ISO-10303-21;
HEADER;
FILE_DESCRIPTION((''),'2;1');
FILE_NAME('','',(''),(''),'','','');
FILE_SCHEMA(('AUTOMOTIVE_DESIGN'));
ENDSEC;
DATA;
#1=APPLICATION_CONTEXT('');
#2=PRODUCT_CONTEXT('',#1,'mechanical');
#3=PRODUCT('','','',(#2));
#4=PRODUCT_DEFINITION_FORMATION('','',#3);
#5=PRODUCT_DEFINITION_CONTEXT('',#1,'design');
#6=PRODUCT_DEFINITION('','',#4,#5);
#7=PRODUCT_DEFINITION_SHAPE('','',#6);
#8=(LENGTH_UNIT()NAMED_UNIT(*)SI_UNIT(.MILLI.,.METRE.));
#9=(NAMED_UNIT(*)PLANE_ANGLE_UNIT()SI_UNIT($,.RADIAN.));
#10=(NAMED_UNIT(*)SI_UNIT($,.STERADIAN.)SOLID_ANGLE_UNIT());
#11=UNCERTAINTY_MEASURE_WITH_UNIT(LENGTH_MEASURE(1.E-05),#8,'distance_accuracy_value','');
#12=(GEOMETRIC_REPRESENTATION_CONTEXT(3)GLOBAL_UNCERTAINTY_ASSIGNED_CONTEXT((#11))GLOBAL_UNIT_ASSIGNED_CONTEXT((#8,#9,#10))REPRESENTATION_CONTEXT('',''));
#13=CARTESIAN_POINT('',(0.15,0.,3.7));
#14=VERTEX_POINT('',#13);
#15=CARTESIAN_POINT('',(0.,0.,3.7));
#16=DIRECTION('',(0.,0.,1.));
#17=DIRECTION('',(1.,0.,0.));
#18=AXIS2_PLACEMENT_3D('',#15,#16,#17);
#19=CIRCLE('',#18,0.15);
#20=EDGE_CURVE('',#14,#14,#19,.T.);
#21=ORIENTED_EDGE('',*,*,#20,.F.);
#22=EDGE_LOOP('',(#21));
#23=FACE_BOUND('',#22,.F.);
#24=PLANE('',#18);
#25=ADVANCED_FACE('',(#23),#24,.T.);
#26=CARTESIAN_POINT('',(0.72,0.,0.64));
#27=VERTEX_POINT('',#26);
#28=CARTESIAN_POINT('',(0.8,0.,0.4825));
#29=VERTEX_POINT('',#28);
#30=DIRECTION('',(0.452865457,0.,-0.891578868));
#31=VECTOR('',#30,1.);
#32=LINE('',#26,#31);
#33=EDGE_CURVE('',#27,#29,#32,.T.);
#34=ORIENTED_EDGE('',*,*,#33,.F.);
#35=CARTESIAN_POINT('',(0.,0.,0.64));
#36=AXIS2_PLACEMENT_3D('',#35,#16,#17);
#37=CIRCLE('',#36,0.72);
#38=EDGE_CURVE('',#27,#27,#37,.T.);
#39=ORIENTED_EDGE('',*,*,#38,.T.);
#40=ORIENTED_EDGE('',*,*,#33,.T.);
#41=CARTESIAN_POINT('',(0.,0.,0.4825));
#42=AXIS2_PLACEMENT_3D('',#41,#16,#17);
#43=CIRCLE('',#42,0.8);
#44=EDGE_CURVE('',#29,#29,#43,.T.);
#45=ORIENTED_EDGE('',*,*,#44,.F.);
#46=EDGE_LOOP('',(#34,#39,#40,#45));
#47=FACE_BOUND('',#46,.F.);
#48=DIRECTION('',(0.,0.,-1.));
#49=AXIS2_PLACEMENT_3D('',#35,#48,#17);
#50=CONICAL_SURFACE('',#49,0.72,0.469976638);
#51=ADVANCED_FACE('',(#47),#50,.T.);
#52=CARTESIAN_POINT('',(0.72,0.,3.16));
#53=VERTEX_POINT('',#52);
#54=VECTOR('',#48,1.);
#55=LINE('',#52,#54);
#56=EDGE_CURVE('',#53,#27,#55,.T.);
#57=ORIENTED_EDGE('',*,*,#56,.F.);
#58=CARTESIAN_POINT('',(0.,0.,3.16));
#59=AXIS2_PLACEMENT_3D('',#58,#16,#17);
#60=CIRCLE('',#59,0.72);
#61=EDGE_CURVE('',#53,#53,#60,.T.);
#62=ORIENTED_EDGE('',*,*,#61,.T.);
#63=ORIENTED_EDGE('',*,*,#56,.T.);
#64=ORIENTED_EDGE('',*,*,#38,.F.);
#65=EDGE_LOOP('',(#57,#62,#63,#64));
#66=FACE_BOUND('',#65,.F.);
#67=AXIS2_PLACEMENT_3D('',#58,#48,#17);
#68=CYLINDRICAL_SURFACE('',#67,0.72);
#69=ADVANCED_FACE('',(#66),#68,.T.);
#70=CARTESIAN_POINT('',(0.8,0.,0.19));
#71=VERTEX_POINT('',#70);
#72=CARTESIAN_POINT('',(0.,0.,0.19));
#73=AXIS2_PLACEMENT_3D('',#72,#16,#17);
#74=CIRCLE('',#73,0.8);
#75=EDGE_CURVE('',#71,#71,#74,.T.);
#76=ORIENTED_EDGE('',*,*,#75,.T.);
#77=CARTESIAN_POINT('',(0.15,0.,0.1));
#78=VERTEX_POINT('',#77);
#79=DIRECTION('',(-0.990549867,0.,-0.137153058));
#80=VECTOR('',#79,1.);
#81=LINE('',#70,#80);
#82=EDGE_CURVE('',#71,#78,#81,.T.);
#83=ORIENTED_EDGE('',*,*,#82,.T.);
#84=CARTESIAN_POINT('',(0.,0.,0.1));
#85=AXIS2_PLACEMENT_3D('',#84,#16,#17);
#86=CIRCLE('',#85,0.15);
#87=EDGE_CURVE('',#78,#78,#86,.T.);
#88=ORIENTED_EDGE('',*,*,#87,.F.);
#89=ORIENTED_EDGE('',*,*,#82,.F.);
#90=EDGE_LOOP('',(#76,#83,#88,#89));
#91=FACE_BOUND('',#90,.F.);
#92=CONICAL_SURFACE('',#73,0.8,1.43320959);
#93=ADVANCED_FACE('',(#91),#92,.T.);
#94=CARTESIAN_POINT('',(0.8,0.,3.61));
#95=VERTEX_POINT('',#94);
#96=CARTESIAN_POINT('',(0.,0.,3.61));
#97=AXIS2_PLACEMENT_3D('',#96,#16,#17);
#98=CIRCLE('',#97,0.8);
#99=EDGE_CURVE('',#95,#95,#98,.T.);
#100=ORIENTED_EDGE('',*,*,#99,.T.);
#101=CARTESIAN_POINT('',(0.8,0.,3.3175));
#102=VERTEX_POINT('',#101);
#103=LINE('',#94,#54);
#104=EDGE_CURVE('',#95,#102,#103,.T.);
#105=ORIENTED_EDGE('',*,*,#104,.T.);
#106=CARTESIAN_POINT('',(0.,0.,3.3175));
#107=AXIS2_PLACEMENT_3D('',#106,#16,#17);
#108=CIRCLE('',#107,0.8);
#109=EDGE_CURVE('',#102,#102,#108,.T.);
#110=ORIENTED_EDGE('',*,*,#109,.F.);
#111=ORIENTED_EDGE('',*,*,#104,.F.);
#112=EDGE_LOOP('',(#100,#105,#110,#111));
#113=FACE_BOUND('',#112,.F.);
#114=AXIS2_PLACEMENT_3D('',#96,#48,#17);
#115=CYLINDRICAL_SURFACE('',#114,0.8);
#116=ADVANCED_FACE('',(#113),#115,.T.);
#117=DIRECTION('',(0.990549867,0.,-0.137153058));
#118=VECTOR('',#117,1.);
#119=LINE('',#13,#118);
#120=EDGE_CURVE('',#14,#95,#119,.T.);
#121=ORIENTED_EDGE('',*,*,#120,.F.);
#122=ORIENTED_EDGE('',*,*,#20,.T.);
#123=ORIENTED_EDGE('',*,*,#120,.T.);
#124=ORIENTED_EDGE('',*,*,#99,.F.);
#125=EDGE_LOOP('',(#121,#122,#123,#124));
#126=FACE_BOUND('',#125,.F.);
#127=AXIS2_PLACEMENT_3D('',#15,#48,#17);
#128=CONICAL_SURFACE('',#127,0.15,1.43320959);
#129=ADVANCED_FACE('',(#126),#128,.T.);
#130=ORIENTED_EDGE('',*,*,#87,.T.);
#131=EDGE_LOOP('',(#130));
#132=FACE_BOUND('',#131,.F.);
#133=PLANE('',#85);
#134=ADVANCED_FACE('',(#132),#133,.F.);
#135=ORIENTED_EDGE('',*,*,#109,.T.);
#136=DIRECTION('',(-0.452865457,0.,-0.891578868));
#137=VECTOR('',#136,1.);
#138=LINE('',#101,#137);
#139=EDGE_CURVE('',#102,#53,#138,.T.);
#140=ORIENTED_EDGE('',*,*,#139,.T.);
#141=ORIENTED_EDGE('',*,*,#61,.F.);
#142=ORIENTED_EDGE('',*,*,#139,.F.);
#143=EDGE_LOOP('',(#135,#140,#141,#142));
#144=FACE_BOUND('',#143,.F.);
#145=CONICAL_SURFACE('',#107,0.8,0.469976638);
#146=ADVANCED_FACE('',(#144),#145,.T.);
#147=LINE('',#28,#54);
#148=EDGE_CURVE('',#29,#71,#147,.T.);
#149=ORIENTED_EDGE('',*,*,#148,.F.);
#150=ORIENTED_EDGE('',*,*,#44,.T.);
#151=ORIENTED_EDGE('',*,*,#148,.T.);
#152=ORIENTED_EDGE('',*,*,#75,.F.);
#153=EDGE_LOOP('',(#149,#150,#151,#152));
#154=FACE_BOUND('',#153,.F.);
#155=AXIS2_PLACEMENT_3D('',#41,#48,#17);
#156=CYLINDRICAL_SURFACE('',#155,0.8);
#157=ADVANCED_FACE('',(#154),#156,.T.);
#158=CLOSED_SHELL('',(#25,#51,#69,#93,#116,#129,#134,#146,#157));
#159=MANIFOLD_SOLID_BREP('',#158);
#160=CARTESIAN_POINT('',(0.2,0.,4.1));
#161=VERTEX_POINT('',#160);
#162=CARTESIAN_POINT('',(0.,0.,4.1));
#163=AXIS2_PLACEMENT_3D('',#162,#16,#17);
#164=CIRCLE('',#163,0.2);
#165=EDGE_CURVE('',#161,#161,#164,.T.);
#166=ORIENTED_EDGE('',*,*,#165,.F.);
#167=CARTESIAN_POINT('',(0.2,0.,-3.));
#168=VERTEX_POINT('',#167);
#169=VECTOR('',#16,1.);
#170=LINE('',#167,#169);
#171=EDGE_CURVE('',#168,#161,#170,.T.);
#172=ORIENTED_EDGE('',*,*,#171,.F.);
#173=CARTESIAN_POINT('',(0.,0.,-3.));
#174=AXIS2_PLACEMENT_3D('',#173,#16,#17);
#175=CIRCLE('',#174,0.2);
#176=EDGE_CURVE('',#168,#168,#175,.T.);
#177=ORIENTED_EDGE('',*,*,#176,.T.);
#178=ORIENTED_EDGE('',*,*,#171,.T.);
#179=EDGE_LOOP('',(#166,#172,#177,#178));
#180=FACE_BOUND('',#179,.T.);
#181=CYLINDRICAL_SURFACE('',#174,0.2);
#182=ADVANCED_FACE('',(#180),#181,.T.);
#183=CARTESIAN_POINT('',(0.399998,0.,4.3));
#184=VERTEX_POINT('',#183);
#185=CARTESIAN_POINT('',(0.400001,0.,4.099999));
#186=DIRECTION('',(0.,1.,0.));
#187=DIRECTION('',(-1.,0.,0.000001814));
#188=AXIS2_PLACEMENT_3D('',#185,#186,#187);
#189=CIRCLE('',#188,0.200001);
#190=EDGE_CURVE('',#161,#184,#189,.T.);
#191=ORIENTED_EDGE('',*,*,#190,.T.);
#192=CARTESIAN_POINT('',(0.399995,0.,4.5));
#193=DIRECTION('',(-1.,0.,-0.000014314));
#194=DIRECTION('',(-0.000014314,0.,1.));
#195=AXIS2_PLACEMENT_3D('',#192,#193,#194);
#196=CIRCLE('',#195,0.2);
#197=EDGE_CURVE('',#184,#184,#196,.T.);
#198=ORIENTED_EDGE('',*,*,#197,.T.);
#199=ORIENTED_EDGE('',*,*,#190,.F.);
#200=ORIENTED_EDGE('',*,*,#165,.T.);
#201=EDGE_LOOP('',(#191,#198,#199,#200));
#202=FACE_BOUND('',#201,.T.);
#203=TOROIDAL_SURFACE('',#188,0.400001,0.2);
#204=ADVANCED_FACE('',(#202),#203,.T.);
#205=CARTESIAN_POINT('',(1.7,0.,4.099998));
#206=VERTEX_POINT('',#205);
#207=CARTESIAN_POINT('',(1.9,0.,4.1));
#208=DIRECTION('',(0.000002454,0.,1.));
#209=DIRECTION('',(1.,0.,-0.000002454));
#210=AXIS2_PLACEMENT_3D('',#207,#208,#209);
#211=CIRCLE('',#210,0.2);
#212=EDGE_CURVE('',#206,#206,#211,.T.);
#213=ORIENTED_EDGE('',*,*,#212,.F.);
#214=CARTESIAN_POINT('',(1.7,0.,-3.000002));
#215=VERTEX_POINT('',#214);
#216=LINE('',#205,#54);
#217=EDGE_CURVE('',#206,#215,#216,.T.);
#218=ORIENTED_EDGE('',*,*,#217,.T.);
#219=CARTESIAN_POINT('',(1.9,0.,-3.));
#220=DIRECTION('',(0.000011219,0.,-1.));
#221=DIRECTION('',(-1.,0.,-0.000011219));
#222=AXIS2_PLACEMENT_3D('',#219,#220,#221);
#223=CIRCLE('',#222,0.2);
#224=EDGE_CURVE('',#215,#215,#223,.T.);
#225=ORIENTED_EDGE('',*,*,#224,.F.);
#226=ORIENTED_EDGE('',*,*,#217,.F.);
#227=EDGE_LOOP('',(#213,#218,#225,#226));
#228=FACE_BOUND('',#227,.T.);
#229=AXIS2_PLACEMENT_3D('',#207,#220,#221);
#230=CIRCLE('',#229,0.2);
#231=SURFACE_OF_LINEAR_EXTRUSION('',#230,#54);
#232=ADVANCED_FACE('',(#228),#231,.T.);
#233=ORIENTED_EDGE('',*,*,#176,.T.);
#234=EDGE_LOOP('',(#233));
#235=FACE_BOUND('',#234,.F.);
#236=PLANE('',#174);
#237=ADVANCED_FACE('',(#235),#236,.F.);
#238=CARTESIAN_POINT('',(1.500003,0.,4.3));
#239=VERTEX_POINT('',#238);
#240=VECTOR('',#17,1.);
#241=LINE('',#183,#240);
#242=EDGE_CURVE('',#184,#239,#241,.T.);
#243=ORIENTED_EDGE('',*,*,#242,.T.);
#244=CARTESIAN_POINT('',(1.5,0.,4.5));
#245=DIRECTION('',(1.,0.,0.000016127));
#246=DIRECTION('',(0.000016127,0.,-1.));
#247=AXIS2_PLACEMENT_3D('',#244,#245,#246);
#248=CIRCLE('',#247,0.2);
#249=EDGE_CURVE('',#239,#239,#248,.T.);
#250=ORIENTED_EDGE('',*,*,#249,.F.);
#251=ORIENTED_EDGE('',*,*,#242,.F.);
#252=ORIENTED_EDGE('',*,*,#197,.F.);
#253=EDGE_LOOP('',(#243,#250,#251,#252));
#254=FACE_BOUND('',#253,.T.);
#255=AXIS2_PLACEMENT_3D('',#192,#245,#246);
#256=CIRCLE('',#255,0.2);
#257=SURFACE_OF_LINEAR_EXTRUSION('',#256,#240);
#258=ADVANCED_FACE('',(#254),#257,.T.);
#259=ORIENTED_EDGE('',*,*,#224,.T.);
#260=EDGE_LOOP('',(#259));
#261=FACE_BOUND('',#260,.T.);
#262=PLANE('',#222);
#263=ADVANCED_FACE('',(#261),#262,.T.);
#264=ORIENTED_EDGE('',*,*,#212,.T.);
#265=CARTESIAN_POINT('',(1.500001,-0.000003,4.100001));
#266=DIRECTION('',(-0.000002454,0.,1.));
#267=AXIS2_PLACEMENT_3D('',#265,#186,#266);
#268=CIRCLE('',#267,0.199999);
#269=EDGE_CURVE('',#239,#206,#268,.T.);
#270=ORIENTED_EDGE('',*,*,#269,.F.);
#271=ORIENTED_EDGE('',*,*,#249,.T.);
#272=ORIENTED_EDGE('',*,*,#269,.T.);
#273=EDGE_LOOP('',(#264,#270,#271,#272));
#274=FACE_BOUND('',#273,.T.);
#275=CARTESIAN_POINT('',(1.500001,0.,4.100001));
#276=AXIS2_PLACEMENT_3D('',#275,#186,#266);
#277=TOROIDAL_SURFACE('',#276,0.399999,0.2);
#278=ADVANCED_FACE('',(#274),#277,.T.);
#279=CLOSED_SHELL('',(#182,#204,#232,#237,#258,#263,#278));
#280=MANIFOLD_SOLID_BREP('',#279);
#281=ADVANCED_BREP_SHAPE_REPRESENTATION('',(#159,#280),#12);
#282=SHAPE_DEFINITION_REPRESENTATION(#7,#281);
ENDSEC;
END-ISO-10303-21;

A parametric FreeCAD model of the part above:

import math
import FreeCAD as App
import Part
import Sketcher


def add_polygon(sketch, points):
    """Adds a closed chain of lines whose ends are joined by coincident constraints."""
    first, n = sketch.GeometryCount, len(points)
    for a, b in zip(points, points[1:] + points[:1]):
        sketch.addGeometry(Part.LineSegment(App.Vector(*a, 0), App.Vector(*b, 0)), False)
    for i in range(n):
        sketch.addConstraint(Sketcher.Constraint("Coincident", first + i, 2, first + (i + 1) % n, 1))

doc = App.newDocument("Part")
body = doc.addObject("PartDesign::Body", "Body")

sketch1 = body.newObject("Sketcher::SketchObject", "Sketch")
sketch1.AttachmentSupport = (doc.getObject("XY_Plane"), [""])
sketch1.MapMode = "FlatFace"
sketch1.AttachmentOffset = App.Placement(App.Vector(0, 0, -2), App.Rotation())
sketch1.addGeometry(Part.Circle(App.Vector(0, 0, 0), App.Vector(0, 0, 1), 0.2), False)
sketch1.addConstraint(Sketcher.Constraint("Coincident", 0, 3, -1, 1))
sketch1.addConstraint(Sketcher.Constraint("Diameter", 0, 0.4))

sketch2 = body.newObject("Sketcher::SketchObject", "Sketch001")
sketch2.AttachmentSupport = (doc.getObject("XZ_Plane"), [""])
sketch2.MapMode = "FlatFace"
sketch2.addGeometry(Part.LineSegment(App.Vector(0, -3, 0), App.Vector(0, 4.1, 0)), False)
sketch2.addGeometry(Part.ArcOfCircle(Part.Circle(App.Vector(0.4, 4.1, 0), App.Vector(0, 0, 1), 0.4), math.radians(90), math.radians(180)), False)
sketch2.addGeometry(Part.LineSegment(App.Vector(0.4, 4.5, 0), App.Vector(1.5, 4.5, 0)), False)
sketch2.addGeometry(Part.ArcOfCircle(Part.Circle(App.Vector(1.5, 4.1, 0), App.Vector(0, 0, 1), 0.4), math.radians(0), math.radians(90)), False)
sketch2.addGeometry(Part.LineSegment(App.Vector(1.9, 4.1, 0), App.Vector(1.9, -3, 0)), False)
sketch2.addConstraint(Sketcher.Constraint("Tangent", 0, 2, 1, 2))
sketch2.addConstraint(Sketcher.Constraint("Coincident", 1, 1, 2, 1))
sketch2.addConstraint(Sketcher.Constraint("Coincident", 2, 2, 3, 2))
sketch2.addConstraint(Sketcher.Constraint("Coincident", 3, 1, 4, 1))
sketch2.addConstraint(Sketcher.Constraint("Vertical", 0))
sketch2.addConstraint(Sketcher.Constraint("Horizontal", 2))
sketch2.addConstraint(Sketcher.Constraint("Vertical", 4))
sketch2.addConstraint(Sketcher.Constraint("Equal", 1, 3))
sketch2.addConstraint(Sketcher.Constraint("PointOnObject", 0, 1, -2))
sketch2.addConstraint(Sketcher.Constraint("Horizontal", 0, 2, 3, 1))
sketch2.addConstraint(Sketcher.Constraint("Horizontal", 0, 1, 4, 2))
sketch2.addConstraint(Sketcher.Constraint("Vertical", 3, 3, 2, 2))
sketch2.addConstraint(Sketcher.Constraint("Radius", 1, 0.400001))
sketch2.addConstraint(Sketcher.Constraint("DistanceY", 0, 1, 0, 2, 7.1))
sketch2.addConstraint(Sketcher.Constraint("DistanceY", 0, 1, -1, 1, 3.0))
sketch2.addConstraint(Sketcher.Constraint("DistanceX", -1, 1, 3, 3, 1.500001))
sketch2.addConstraint(Sketcher.Constraint("DistanceX", 2, 1, 2, 2, 1.100005))
doc.recompute()

additivepipe = body.newObject("PartDesign::AdditivePipe", "AdditivePipe")
additivepipe.Profile = sketch1
additivepipe.Spine = (sketch2, ["Edge1", "Edge2", "Edge3", "Edge4", "Edge5"])
body2 = doc.addObject("PartDesign::Body", "Body001")

sketch3 = body2.newObject("Sketcher::SketchObject", "Sketch002")
sketch3.AttachmentSupport = (doc.getObject("XZ_Plane001"), [""])
sketch3.MapMode = "FlatFace"
add_polygon(sketch3, [(0, 3.7), (0, 0.1), (0.15, 0.1), (0.8, 0.19), (0.8, 0.48), (0.72, 0.64), (0.72, 3.16), (0.8, 3.32), (0.8, 3.61), (0.15, 3.7)])
sketch3.addConstraint(Sketcher.Constraint("Vertical", 0))
sketch3.addConstraint(Sketcher.Constraint("Horizontal", 1))
sketch3.addConstraint(Sketcher.Constraint("Vertical", 3))
sketch3.addConstraint(Sketcher.Constraint("Vertical", 5))
sketch3.addConstraint(Sketcher.Constraint("Vertical", 7))
sketch3.addConstraint(Sketcher.Constraint("Horizontal", 9))
sketch3.addConstraint(Sketcher.Constraint("PointOnObject", 0, 2, -2))
sketch3.addConstraint(Sketcher.Constraint("Vertical", 3, 2, 6, 2))
sketch3.addConstraint(Sketcher.Constraint("Vertical", 1, 2, 8, 2))
sketch3.addConstraint(Sketcher.Constraint("Equal", 3, 7))
sketch3.addConstraint(Sketcher.Constraint("Equal", 4, 6))
sketch3.addConstraint(Sketcher.Constraint("Equal", 2, 8))
sketch3.addConstraint(Sketcher.Constraint("DistanceY", 0, 2, 0, 1, 3.6))
sketch3.addConstraint(Sketcher.Constraint("DistanceX", 1, 1, 1, 2, 0.15))
sketch3.addConstraint(Sketcher.Constraint("DistanceY", 5, 1, 5, 2, 2.52))
sketch3.addConstraint(Sketcher.Constraint("DistanceY", -1, 1, 0, 2, 0.1))
sketch3.addConstraint(Sketcher.Constraint("DistanceX", -1, 1, 2, 2, 0.8))
sketch3.addConstraint(Sketcher.Constraint("DistanceY", -1, 1, 2, 2, 0.19))
sketch3.addConstraint(Sketcher.Constraint("DistanceX", -1, 1, 4, 2, 0.72))
sketch3.addConstraint(Sketcher.Constraint("DistanceY", 3, 1, 3, 2, 0.2925))
revolution = body2.newObject("PartDesign::Revolution", "Revolution")
revolution.Profile = sketch3
revolution.ReferenceAxis = (sketch3, ["V_Axis"])
revolution.Angle = 360

doc.recompute()
